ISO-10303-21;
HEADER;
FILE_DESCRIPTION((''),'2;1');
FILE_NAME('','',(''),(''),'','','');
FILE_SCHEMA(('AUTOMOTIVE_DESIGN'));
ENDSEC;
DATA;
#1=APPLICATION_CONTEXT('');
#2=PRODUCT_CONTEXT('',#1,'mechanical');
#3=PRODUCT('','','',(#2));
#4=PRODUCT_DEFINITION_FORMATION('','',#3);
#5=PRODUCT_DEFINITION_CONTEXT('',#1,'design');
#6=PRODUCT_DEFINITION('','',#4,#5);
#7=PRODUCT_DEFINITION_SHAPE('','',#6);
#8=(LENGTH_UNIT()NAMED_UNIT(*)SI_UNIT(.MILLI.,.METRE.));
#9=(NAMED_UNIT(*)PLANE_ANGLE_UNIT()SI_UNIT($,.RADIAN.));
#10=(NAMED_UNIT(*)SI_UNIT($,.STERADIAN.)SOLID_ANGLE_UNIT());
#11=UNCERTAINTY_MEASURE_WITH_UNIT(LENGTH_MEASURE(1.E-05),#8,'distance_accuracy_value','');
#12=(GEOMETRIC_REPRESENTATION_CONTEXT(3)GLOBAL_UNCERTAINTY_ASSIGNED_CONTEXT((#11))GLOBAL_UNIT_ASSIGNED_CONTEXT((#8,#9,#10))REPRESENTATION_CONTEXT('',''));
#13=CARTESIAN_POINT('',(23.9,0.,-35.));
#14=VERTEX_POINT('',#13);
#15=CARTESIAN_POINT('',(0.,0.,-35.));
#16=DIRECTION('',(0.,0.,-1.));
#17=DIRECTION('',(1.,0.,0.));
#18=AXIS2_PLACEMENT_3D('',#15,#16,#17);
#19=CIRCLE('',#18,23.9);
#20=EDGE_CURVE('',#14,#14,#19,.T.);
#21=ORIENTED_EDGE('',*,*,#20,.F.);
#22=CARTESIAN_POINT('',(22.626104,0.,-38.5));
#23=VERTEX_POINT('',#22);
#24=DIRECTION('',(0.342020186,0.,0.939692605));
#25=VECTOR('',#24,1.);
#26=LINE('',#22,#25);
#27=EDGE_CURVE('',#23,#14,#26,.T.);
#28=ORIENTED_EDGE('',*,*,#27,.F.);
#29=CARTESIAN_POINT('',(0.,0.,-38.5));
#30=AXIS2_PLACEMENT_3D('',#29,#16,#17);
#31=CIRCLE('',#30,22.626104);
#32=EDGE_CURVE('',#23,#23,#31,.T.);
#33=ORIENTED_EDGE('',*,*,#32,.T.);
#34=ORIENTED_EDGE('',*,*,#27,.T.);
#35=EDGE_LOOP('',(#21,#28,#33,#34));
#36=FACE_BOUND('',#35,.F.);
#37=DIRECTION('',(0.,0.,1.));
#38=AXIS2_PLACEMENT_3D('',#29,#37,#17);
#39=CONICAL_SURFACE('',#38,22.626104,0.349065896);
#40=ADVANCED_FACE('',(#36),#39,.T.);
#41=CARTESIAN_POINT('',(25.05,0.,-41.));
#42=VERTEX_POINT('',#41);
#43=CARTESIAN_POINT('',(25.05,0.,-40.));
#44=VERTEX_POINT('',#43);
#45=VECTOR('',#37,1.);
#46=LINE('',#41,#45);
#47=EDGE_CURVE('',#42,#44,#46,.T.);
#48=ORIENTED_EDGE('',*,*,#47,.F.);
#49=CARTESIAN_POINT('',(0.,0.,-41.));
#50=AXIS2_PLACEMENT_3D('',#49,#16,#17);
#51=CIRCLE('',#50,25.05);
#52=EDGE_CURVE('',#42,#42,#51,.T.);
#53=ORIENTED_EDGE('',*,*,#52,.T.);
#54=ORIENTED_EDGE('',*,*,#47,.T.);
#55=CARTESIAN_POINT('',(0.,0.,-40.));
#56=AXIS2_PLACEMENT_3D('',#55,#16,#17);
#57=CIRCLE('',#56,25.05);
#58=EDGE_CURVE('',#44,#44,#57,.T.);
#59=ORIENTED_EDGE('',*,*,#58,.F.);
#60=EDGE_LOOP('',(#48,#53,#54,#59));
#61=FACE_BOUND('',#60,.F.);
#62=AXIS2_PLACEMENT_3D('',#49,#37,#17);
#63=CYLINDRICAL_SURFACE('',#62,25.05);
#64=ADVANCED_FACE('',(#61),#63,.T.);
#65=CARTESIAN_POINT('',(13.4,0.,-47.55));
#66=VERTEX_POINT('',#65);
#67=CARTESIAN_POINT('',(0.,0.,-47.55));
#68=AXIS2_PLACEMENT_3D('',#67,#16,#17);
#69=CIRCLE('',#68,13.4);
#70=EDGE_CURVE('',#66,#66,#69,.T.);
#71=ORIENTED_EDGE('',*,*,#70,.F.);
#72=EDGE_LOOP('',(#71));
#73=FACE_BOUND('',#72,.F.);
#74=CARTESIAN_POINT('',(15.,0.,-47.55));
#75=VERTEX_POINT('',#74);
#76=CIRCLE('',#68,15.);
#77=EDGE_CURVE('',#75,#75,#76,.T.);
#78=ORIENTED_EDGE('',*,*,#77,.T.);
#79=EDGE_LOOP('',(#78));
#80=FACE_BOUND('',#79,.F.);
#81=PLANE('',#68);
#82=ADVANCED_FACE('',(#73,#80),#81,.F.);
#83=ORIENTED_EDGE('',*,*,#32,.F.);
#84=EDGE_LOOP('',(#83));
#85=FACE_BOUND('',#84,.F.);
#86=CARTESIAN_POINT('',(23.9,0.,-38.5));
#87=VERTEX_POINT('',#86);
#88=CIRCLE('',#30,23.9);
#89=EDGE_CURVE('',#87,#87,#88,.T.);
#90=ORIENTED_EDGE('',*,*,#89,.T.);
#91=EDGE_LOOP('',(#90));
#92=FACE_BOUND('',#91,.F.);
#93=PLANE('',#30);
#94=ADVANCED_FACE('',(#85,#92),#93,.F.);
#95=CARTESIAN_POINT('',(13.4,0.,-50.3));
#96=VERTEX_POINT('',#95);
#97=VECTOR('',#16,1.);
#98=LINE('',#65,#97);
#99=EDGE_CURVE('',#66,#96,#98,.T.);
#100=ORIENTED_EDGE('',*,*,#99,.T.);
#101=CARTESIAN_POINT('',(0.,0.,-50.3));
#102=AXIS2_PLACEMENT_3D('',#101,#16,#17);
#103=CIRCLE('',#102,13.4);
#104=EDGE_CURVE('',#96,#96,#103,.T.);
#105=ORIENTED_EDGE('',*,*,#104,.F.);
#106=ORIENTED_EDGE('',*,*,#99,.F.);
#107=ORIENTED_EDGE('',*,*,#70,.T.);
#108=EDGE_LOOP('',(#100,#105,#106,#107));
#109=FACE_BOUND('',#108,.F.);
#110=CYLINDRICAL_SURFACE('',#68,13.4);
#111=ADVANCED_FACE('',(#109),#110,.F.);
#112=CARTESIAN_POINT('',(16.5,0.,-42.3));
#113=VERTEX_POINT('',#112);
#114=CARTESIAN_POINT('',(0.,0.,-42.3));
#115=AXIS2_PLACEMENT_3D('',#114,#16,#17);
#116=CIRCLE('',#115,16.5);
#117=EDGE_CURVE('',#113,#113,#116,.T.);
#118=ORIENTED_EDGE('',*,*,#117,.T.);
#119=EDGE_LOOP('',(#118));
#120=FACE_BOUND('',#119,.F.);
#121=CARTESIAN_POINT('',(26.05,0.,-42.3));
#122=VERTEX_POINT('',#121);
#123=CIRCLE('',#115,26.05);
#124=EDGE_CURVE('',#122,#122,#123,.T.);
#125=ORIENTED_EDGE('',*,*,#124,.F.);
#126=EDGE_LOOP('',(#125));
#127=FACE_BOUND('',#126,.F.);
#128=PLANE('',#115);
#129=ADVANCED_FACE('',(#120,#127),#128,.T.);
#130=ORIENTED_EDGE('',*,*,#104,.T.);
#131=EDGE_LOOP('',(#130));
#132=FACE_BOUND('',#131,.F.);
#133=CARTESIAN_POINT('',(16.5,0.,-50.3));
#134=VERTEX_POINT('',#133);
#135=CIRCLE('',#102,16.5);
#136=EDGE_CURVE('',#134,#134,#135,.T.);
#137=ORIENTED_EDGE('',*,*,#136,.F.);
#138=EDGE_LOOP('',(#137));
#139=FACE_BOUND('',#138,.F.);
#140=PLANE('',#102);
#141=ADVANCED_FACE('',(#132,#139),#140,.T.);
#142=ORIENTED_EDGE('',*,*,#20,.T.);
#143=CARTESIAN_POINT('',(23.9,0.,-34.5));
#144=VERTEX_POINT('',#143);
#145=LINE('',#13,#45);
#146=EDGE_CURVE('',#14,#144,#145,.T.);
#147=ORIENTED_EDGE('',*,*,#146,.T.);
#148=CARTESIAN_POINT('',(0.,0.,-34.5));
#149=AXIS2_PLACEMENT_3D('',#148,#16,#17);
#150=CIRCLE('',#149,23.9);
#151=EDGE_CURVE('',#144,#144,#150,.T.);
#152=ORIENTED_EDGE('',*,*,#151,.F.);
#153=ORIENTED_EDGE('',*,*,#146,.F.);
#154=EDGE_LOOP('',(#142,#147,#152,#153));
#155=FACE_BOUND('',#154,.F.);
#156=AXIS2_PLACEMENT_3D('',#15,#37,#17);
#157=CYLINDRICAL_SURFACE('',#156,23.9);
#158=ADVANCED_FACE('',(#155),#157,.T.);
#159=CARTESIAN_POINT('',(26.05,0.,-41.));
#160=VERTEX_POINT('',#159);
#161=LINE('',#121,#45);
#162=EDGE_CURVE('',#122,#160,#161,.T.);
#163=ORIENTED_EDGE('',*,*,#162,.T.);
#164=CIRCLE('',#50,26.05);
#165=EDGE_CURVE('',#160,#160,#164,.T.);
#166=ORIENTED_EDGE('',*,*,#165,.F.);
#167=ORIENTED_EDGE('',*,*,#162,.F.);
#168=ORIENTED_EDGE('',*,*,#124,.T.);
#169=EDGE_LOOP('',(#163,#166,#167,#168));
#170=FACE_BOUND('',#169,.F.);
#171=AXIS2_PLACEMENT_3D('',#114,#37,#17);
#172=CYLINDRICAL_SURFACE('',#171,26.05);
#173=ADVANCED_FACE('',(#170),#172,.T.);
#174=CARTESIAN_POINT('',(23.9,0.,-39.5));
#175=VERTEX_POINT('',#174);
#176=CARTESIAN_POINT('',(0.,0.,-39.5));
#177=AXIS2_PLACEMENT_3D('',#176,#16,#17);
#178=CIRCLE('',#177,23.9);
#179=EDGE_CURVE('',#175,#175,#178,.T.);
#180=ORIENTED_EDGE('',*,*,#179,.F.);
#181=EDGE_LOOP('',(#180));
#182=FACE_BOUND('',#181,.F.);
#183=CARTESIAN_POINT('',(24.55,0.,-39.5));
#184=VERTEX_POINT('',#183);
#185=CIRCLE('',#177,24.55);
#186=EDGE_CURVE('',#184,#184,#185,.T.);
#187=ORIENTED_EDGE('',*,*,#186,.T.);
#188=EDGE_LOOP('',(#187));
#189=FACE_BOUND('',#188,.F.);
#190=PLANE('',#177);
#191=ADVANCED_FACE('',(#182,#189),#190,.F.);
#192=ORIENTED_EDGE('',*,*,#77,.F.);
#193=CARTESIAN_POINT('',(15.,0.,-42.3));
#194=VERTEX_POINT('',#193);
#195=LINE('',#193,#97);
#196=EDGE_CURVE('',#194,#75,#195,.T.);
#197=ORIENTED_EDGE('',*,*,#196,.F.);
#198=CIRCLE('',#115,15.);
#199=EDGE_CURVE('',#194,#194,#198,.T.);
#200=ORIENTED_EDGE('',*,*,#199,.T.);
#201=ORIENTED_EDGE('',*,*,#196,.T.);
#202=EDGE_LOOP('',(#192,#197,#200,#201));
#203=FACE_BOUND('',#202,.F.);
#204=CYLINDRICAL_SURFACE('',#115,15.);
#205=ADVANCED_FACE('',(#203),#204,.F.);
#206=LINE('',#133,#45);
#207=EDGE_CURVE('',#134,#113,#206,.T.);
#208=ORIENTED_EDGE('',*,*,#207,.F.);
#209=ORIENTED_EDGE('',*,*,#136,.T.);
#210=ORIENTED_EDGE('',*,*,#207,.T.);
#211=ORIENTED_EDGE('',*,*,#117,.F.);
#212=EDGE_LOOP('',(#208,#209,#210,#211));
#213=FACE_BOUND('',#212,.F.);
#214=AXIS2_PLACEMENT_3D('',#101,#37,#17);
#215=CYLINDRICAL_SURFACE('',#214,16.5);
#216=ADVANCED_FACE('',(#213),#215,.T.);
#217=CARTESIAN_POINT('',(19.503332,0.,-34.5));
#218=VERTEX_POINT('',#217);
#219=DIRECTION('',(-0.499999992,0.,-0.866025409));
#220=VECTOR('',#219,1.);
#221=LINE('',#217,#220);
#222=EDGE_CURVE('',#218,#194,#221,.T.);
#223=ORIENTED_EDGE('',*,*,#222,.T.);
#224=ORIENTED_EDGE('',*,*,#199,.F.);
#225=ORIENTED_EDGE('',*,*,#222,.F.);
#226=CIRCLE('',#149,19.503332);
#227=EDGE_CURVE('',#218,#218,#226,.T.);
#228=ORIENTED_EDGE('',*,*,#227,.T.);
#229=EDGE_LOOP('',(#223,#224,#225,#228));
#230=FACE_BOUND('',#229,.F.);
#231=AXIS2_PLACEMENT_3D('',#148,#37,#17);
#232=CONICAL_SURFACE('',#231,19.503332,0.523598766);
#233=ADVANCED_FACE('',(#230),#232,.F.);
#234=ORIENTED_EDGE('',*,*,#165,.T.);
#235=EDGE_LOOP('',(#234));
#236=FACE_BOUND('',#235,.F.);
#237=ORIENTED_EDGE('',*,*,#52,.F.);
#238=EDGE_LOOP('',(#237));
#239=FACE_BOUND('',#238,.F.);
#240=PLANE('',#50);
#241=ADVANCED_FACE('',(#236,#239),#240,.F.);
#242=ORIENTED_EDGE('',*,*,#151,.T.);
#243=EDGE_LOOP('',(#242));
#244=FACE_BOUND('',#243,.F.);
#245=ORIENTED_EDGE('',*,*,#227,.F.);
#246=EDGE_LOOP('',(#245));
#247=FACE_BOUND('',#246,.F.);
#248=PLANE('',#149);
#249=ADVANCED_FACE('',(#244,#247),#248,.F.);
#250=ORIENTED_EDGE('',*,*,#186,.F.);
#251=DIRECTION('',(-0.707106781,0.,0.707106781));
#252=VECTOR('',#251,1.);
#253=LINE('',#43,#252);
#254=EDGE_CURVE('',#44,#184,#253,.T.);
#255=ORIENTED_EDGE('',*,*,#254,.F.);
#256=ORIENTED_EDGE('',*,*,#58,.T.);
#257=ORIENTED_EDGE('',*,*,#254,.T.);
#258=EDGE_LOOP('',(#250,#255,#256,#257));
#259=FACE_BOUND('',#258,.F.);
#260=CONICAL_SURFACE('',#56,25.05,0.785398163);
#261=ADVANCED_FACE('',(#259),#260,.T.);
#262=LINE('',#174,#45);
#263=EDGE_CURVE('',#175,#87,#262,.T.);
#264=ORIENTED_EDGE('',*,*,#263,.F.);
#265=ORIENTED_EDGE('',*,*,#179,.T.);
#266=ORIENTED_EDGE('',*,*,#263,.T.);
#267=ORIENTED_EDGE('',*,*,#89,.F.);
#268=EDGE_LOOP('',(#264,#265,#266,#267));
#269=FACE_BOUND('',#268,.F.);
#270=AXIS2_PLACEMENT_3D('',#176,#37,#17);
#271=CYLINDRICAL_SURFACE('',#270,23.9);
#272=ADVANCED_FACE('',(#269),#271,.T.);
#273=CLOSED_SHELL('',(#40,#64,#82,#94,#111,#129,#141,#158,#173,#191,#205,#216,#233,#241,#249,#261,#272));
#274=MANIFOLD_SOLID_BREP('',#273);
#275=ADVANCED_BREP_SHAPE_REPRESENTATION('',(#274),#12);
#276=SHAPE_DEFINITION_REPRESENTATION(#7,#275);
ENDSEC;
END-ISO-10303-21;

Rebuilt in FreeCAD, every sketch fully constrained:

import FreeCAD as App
import Part
import Sketcher

V = App.Vector
Q = App.Units.Quantity

doc = App.newDocument("Part")
params = doc.addObject("Spreadsheet::Sheet", "Params")
for row, (alias, value) in enumerate([
    ("sketch1_width", "1 mm"),
    ("sketch1_height", "8 mm"),
    ("sketch1_width2", "1.6 mm"),
    ("sketch1_width3", "3.1 mm"),
    ("sketch1_height2", "1.3 mm"),
    ("revolution_angle", "360 deg"),
], start=1):
    params.set(f"A{row}", alias)
    params.set(f"B{row}", "=" + value)
    params.setAlias(f"B{row}", alias)

body = doc.addObject("PartDesign::Body", "Body")

# Sketch on XZ plane
sketch1 = body.newObject("Sketcher::SketchObject", "Sketch")
sketch1.AttachmentSupport = (doc.getObject("XZ_Plane"), [""])
sketch1.MapMode = "FlatFace"
sketch1.addGeometry(Part.LineSegment(V(23.9, -34.5, 0), V(19.5, -34.5, 0)), False)
sketch1.addGeometry(Part.LineSegment(V(19.5, -34.5, 0), V(15, -42.3, 0)), False)
sketch1.addGeometry(Part.LineSegment(V(15, -42.3, 0), V(15, -47.5, 0)), False)
sketch1.addGeometry(Part.LineSegment(V(15, -47.5, 0), V(13.4, -47.5, 0)), False)
sketch1.addGeometry(Part.LineSegment(V(13.4, -47.5, 0), V(13.4, -50.3, 0)), False)
sketch1.addGeometry(Part.LineSegment(V(13.4, -50.3, 0), V(16.5, -50.3, 0)), False)
sketch1.addGeometry(Part.LineSegment(V(16.5, -50.3, 0), V(16.5, -42.3, 0)), False)
sketch1.addGeometry(Part.LineSegment(V(16.5, -42.3, 0), V(26.1, -42.3, 0)), False)
sketch1.addGeometry(Part.LineSegment(V(26.1, -42.3, 0), V(26.1, -41, 0)), False)
sketch1.addGeometry(Part.LineSegment(V(26.1, -41, 0), V(25.1, -41, 0)), False)
sketch1.addGeometry(Part.LineSegment(V(25.1, -41, 0), V(25.1, -40, 0)), False)
sketch1.addGeometry(Part.LineSegment(V(25.1, -40, 0), V(24.6, -39.5, 0)), False)
sketch1.addGeometry(Part.LineSegment(V(24.6, -39.5, 0), V(23.9, -39.5, 0)), False)
sketch1.addGeometry(Part.LineSegment(V(23.9, -39.5, 0), V(23.9, -38.5, 0)), False)
sketch1.addGeometry(Part.LineSegment(V(23.9, -38.5, 0), V(22.6, -38.5, 0)), False)
sketch1.addGeometry(Part.LineSegment(V(22.6, -38.5, 0), V(23.9, -35, 0)), False)
sketch1.addGeometry(Part.LineSegment(V(23.9, -35, 0), V(23.9, -34.5, 0)), False)
sketch1.addConstraint(Sketcher.Constraint("Coincident", 0, 2, 1, 1))
sketch1.addConstraint(Sketcher.Constraint("Coincident", 1, 2, 2, 1))
sketch1.addConstraint(Sketcher.Constraint("Coincident", 2, 2, 3, 1))
sketch1.addConstraint(Sketcher.Constraint("Coincident", 3, 2, 4, 1))
sketch1.addConstraint(Sketcher.Constraint("Coincident", 4, 2, 5, 1))
sketch1.addConstraint(Sketcher.Constraint("Coincident", 5, 2, 6, 1))
sketch1.addConstraint(Sketcher.Constraint("Coincident", 6, 2, 7, 1))
sketch1.addConstraint(Sketcher.Constraint("Coincident", 7, 2, 8, 1))
sketch1.addConstraint(Sketcher.Constraint("Coincident", 8, 2, 9, 1))
sketch1.addConstraint(Sketcher.Constraint("Coincident", 9, 2, 10, 1))
sketch1.addConstraint(Sketcher.Constraint("Coincident", 10, 2, 11, 1))
sketch1.addConstraint(Sketcher.Constraint("Coincident", 11, 2, 12, 1))
sketch1.addConstraint(Sketcher.Constraint("Coincident", 12, 2, 13, 1))
sketch1.addConstraint(Sketcher.Constraint("Coincident", 13, 2, 14, 1))
sketch1.addConstraint(Sketcher.Constraint("Coincident", 14, 2, 15, 1))
sketch1.addConstraint(Sketcher.Constraint("Coincident", 15, 2, 16, 1))
sketch1.addConstraint(Sketcher.Constraint("Coincident", 16, 2, 0, 1))
sketch1.addConstraint(Sketcher.Constraint("Horizontal", 0))
sketch1.addConstraint(Sketcher.Constraint("Vertical", 2))
sketch1.addConstraint(Sketcher.Constraint("Horizontal", 3))
sketch1.addConstraint(Sketcher.Constraint("Vertical", 4))
sketch1.addConstraint(Sketcher.Constraint("Horizontal", 5))
sketch1.addConstraint(Sketcher.Constraint("Vertical", 6))
sketch1.addConstraint(Sketcher.Constraint("Horizontal", 7))
sketch1.addConstraint(Sketcher.Constraint("Vertical", 8))
sketch1.addConstraint(Sketcher.Constraint("Horizontal", 9))
sketch1.addConstraint(Sketcher.Constraint("Vertical", 10))
sketch1.addConstraint(Sketcher.Constraint("Horizontal", 12))
sketch1.addConstraint(Sketcher.Constraint("Vertical", 13))
sketch1.addConstraint(Sketcher.Constraint("Horizontal", 14))
sketch1.addConstraint(Sketcher.Constraint("Vertical", 16))
sketch1.addConstraint(Sketcher.Constraint("Horizontal", 1, 2, 6, 2))
sketch1.addConstraint(Sketcher.Constraint("Vertical", 13, 2, 15, 2))
sketch1.addConstraint(Sketcher.Constraint("Equal", 9, 10))
sketch1.addConstraint(Sketcher.Constraint("Equal", 10, 13))
sketch1.addConstraint(Sketcher.Constraint("DistanceX", 9, 2, 9, 1, Q("1 mm")))
sketch1.addConstraint(Sketcher.Constraint("DistanceY", 6, 1, 6, 2, Q("8 mm")))
sketch1.addConstraint(Sketcher.Constraint("Angle", 1, Q("-119.999999 deg")))
sketch1.addConstraint(Sketcher.Constraint("Angle", 11, Q("135 deg")))
sketch1.addConstraint(Sketcher.Constraint("Angle", 15, Q("69.999997 deg")))
sketch1.addConstraint(Sketcher.Constraint("DistanceX", 3, 2, 3, 1, Q("1.6 mm")))
sketch1.addConstraint(Sketcher.Constraint("DistanceX", 5, 1, 5, 2, Q("3.1 mm")))
sketch1.addConstraint(Sketcher.Constraint("DistanceY", 8, 1, 8, 2, Q("1.3 mm")))
sketch1.addConstraint(Sketcher.Constraint("DistanceY", 16, 1, 16, 2, Q("0.5 mm")))
sketch1.addConstraint(Sketcher.Constraint("DistanceX", -1, 1, 1, 2, Q("15 mm")))
sketch1.addConstraint(Sketcher.Constraint("DistanceY", 8, 2, -1, 1, Q("41 mm")))
sketch1.addConstraint(Sketcher.Constraint("DistanceY", 15, 2, -1, 1, Q("35 mm")))
sketch1.addConstraint(Sketcher.Constraint("DistanceY", 11, 2, 0, 2, Q("5 mm")))
sketch1.addConstraint(Sketcher.Constraint("DistanceX", 7, 1, 7, 2, Q("9.55 mm")))
sketch1.addConstraint(Sketcher.Constraint("DistanceX", 12, 2, 12, 1, Q("0.65 mm")))
sketch1.addConstraint(Sketcher.Constraint("DistanceY", 2, 2, 2, 1, Q("5.25 mm")))
sketch1.setExpression("Constraints[35]", "Params.sketch1_width")
sketch1.setExpression("Constraints[36]", "Params.sketch1_height")
sketch1.setExpression("Constraints[40]", "Params.sketch1_width2")
sketch1.setExpression("Constraints[41]", "Params.sketch1_width3")
sketch1.setExpression("Constraints[42]", "Params.sketch1_height2")
revolution = body.newObject("PartDesign::Revolution", "Revolution")
revolution.Profile = sketch1
revolution.ReferenceAxis = (sketch1, ["V_Axis"])
revolution.setExpression("Angle", "Params.revolution_angle")

doc.recompute()
